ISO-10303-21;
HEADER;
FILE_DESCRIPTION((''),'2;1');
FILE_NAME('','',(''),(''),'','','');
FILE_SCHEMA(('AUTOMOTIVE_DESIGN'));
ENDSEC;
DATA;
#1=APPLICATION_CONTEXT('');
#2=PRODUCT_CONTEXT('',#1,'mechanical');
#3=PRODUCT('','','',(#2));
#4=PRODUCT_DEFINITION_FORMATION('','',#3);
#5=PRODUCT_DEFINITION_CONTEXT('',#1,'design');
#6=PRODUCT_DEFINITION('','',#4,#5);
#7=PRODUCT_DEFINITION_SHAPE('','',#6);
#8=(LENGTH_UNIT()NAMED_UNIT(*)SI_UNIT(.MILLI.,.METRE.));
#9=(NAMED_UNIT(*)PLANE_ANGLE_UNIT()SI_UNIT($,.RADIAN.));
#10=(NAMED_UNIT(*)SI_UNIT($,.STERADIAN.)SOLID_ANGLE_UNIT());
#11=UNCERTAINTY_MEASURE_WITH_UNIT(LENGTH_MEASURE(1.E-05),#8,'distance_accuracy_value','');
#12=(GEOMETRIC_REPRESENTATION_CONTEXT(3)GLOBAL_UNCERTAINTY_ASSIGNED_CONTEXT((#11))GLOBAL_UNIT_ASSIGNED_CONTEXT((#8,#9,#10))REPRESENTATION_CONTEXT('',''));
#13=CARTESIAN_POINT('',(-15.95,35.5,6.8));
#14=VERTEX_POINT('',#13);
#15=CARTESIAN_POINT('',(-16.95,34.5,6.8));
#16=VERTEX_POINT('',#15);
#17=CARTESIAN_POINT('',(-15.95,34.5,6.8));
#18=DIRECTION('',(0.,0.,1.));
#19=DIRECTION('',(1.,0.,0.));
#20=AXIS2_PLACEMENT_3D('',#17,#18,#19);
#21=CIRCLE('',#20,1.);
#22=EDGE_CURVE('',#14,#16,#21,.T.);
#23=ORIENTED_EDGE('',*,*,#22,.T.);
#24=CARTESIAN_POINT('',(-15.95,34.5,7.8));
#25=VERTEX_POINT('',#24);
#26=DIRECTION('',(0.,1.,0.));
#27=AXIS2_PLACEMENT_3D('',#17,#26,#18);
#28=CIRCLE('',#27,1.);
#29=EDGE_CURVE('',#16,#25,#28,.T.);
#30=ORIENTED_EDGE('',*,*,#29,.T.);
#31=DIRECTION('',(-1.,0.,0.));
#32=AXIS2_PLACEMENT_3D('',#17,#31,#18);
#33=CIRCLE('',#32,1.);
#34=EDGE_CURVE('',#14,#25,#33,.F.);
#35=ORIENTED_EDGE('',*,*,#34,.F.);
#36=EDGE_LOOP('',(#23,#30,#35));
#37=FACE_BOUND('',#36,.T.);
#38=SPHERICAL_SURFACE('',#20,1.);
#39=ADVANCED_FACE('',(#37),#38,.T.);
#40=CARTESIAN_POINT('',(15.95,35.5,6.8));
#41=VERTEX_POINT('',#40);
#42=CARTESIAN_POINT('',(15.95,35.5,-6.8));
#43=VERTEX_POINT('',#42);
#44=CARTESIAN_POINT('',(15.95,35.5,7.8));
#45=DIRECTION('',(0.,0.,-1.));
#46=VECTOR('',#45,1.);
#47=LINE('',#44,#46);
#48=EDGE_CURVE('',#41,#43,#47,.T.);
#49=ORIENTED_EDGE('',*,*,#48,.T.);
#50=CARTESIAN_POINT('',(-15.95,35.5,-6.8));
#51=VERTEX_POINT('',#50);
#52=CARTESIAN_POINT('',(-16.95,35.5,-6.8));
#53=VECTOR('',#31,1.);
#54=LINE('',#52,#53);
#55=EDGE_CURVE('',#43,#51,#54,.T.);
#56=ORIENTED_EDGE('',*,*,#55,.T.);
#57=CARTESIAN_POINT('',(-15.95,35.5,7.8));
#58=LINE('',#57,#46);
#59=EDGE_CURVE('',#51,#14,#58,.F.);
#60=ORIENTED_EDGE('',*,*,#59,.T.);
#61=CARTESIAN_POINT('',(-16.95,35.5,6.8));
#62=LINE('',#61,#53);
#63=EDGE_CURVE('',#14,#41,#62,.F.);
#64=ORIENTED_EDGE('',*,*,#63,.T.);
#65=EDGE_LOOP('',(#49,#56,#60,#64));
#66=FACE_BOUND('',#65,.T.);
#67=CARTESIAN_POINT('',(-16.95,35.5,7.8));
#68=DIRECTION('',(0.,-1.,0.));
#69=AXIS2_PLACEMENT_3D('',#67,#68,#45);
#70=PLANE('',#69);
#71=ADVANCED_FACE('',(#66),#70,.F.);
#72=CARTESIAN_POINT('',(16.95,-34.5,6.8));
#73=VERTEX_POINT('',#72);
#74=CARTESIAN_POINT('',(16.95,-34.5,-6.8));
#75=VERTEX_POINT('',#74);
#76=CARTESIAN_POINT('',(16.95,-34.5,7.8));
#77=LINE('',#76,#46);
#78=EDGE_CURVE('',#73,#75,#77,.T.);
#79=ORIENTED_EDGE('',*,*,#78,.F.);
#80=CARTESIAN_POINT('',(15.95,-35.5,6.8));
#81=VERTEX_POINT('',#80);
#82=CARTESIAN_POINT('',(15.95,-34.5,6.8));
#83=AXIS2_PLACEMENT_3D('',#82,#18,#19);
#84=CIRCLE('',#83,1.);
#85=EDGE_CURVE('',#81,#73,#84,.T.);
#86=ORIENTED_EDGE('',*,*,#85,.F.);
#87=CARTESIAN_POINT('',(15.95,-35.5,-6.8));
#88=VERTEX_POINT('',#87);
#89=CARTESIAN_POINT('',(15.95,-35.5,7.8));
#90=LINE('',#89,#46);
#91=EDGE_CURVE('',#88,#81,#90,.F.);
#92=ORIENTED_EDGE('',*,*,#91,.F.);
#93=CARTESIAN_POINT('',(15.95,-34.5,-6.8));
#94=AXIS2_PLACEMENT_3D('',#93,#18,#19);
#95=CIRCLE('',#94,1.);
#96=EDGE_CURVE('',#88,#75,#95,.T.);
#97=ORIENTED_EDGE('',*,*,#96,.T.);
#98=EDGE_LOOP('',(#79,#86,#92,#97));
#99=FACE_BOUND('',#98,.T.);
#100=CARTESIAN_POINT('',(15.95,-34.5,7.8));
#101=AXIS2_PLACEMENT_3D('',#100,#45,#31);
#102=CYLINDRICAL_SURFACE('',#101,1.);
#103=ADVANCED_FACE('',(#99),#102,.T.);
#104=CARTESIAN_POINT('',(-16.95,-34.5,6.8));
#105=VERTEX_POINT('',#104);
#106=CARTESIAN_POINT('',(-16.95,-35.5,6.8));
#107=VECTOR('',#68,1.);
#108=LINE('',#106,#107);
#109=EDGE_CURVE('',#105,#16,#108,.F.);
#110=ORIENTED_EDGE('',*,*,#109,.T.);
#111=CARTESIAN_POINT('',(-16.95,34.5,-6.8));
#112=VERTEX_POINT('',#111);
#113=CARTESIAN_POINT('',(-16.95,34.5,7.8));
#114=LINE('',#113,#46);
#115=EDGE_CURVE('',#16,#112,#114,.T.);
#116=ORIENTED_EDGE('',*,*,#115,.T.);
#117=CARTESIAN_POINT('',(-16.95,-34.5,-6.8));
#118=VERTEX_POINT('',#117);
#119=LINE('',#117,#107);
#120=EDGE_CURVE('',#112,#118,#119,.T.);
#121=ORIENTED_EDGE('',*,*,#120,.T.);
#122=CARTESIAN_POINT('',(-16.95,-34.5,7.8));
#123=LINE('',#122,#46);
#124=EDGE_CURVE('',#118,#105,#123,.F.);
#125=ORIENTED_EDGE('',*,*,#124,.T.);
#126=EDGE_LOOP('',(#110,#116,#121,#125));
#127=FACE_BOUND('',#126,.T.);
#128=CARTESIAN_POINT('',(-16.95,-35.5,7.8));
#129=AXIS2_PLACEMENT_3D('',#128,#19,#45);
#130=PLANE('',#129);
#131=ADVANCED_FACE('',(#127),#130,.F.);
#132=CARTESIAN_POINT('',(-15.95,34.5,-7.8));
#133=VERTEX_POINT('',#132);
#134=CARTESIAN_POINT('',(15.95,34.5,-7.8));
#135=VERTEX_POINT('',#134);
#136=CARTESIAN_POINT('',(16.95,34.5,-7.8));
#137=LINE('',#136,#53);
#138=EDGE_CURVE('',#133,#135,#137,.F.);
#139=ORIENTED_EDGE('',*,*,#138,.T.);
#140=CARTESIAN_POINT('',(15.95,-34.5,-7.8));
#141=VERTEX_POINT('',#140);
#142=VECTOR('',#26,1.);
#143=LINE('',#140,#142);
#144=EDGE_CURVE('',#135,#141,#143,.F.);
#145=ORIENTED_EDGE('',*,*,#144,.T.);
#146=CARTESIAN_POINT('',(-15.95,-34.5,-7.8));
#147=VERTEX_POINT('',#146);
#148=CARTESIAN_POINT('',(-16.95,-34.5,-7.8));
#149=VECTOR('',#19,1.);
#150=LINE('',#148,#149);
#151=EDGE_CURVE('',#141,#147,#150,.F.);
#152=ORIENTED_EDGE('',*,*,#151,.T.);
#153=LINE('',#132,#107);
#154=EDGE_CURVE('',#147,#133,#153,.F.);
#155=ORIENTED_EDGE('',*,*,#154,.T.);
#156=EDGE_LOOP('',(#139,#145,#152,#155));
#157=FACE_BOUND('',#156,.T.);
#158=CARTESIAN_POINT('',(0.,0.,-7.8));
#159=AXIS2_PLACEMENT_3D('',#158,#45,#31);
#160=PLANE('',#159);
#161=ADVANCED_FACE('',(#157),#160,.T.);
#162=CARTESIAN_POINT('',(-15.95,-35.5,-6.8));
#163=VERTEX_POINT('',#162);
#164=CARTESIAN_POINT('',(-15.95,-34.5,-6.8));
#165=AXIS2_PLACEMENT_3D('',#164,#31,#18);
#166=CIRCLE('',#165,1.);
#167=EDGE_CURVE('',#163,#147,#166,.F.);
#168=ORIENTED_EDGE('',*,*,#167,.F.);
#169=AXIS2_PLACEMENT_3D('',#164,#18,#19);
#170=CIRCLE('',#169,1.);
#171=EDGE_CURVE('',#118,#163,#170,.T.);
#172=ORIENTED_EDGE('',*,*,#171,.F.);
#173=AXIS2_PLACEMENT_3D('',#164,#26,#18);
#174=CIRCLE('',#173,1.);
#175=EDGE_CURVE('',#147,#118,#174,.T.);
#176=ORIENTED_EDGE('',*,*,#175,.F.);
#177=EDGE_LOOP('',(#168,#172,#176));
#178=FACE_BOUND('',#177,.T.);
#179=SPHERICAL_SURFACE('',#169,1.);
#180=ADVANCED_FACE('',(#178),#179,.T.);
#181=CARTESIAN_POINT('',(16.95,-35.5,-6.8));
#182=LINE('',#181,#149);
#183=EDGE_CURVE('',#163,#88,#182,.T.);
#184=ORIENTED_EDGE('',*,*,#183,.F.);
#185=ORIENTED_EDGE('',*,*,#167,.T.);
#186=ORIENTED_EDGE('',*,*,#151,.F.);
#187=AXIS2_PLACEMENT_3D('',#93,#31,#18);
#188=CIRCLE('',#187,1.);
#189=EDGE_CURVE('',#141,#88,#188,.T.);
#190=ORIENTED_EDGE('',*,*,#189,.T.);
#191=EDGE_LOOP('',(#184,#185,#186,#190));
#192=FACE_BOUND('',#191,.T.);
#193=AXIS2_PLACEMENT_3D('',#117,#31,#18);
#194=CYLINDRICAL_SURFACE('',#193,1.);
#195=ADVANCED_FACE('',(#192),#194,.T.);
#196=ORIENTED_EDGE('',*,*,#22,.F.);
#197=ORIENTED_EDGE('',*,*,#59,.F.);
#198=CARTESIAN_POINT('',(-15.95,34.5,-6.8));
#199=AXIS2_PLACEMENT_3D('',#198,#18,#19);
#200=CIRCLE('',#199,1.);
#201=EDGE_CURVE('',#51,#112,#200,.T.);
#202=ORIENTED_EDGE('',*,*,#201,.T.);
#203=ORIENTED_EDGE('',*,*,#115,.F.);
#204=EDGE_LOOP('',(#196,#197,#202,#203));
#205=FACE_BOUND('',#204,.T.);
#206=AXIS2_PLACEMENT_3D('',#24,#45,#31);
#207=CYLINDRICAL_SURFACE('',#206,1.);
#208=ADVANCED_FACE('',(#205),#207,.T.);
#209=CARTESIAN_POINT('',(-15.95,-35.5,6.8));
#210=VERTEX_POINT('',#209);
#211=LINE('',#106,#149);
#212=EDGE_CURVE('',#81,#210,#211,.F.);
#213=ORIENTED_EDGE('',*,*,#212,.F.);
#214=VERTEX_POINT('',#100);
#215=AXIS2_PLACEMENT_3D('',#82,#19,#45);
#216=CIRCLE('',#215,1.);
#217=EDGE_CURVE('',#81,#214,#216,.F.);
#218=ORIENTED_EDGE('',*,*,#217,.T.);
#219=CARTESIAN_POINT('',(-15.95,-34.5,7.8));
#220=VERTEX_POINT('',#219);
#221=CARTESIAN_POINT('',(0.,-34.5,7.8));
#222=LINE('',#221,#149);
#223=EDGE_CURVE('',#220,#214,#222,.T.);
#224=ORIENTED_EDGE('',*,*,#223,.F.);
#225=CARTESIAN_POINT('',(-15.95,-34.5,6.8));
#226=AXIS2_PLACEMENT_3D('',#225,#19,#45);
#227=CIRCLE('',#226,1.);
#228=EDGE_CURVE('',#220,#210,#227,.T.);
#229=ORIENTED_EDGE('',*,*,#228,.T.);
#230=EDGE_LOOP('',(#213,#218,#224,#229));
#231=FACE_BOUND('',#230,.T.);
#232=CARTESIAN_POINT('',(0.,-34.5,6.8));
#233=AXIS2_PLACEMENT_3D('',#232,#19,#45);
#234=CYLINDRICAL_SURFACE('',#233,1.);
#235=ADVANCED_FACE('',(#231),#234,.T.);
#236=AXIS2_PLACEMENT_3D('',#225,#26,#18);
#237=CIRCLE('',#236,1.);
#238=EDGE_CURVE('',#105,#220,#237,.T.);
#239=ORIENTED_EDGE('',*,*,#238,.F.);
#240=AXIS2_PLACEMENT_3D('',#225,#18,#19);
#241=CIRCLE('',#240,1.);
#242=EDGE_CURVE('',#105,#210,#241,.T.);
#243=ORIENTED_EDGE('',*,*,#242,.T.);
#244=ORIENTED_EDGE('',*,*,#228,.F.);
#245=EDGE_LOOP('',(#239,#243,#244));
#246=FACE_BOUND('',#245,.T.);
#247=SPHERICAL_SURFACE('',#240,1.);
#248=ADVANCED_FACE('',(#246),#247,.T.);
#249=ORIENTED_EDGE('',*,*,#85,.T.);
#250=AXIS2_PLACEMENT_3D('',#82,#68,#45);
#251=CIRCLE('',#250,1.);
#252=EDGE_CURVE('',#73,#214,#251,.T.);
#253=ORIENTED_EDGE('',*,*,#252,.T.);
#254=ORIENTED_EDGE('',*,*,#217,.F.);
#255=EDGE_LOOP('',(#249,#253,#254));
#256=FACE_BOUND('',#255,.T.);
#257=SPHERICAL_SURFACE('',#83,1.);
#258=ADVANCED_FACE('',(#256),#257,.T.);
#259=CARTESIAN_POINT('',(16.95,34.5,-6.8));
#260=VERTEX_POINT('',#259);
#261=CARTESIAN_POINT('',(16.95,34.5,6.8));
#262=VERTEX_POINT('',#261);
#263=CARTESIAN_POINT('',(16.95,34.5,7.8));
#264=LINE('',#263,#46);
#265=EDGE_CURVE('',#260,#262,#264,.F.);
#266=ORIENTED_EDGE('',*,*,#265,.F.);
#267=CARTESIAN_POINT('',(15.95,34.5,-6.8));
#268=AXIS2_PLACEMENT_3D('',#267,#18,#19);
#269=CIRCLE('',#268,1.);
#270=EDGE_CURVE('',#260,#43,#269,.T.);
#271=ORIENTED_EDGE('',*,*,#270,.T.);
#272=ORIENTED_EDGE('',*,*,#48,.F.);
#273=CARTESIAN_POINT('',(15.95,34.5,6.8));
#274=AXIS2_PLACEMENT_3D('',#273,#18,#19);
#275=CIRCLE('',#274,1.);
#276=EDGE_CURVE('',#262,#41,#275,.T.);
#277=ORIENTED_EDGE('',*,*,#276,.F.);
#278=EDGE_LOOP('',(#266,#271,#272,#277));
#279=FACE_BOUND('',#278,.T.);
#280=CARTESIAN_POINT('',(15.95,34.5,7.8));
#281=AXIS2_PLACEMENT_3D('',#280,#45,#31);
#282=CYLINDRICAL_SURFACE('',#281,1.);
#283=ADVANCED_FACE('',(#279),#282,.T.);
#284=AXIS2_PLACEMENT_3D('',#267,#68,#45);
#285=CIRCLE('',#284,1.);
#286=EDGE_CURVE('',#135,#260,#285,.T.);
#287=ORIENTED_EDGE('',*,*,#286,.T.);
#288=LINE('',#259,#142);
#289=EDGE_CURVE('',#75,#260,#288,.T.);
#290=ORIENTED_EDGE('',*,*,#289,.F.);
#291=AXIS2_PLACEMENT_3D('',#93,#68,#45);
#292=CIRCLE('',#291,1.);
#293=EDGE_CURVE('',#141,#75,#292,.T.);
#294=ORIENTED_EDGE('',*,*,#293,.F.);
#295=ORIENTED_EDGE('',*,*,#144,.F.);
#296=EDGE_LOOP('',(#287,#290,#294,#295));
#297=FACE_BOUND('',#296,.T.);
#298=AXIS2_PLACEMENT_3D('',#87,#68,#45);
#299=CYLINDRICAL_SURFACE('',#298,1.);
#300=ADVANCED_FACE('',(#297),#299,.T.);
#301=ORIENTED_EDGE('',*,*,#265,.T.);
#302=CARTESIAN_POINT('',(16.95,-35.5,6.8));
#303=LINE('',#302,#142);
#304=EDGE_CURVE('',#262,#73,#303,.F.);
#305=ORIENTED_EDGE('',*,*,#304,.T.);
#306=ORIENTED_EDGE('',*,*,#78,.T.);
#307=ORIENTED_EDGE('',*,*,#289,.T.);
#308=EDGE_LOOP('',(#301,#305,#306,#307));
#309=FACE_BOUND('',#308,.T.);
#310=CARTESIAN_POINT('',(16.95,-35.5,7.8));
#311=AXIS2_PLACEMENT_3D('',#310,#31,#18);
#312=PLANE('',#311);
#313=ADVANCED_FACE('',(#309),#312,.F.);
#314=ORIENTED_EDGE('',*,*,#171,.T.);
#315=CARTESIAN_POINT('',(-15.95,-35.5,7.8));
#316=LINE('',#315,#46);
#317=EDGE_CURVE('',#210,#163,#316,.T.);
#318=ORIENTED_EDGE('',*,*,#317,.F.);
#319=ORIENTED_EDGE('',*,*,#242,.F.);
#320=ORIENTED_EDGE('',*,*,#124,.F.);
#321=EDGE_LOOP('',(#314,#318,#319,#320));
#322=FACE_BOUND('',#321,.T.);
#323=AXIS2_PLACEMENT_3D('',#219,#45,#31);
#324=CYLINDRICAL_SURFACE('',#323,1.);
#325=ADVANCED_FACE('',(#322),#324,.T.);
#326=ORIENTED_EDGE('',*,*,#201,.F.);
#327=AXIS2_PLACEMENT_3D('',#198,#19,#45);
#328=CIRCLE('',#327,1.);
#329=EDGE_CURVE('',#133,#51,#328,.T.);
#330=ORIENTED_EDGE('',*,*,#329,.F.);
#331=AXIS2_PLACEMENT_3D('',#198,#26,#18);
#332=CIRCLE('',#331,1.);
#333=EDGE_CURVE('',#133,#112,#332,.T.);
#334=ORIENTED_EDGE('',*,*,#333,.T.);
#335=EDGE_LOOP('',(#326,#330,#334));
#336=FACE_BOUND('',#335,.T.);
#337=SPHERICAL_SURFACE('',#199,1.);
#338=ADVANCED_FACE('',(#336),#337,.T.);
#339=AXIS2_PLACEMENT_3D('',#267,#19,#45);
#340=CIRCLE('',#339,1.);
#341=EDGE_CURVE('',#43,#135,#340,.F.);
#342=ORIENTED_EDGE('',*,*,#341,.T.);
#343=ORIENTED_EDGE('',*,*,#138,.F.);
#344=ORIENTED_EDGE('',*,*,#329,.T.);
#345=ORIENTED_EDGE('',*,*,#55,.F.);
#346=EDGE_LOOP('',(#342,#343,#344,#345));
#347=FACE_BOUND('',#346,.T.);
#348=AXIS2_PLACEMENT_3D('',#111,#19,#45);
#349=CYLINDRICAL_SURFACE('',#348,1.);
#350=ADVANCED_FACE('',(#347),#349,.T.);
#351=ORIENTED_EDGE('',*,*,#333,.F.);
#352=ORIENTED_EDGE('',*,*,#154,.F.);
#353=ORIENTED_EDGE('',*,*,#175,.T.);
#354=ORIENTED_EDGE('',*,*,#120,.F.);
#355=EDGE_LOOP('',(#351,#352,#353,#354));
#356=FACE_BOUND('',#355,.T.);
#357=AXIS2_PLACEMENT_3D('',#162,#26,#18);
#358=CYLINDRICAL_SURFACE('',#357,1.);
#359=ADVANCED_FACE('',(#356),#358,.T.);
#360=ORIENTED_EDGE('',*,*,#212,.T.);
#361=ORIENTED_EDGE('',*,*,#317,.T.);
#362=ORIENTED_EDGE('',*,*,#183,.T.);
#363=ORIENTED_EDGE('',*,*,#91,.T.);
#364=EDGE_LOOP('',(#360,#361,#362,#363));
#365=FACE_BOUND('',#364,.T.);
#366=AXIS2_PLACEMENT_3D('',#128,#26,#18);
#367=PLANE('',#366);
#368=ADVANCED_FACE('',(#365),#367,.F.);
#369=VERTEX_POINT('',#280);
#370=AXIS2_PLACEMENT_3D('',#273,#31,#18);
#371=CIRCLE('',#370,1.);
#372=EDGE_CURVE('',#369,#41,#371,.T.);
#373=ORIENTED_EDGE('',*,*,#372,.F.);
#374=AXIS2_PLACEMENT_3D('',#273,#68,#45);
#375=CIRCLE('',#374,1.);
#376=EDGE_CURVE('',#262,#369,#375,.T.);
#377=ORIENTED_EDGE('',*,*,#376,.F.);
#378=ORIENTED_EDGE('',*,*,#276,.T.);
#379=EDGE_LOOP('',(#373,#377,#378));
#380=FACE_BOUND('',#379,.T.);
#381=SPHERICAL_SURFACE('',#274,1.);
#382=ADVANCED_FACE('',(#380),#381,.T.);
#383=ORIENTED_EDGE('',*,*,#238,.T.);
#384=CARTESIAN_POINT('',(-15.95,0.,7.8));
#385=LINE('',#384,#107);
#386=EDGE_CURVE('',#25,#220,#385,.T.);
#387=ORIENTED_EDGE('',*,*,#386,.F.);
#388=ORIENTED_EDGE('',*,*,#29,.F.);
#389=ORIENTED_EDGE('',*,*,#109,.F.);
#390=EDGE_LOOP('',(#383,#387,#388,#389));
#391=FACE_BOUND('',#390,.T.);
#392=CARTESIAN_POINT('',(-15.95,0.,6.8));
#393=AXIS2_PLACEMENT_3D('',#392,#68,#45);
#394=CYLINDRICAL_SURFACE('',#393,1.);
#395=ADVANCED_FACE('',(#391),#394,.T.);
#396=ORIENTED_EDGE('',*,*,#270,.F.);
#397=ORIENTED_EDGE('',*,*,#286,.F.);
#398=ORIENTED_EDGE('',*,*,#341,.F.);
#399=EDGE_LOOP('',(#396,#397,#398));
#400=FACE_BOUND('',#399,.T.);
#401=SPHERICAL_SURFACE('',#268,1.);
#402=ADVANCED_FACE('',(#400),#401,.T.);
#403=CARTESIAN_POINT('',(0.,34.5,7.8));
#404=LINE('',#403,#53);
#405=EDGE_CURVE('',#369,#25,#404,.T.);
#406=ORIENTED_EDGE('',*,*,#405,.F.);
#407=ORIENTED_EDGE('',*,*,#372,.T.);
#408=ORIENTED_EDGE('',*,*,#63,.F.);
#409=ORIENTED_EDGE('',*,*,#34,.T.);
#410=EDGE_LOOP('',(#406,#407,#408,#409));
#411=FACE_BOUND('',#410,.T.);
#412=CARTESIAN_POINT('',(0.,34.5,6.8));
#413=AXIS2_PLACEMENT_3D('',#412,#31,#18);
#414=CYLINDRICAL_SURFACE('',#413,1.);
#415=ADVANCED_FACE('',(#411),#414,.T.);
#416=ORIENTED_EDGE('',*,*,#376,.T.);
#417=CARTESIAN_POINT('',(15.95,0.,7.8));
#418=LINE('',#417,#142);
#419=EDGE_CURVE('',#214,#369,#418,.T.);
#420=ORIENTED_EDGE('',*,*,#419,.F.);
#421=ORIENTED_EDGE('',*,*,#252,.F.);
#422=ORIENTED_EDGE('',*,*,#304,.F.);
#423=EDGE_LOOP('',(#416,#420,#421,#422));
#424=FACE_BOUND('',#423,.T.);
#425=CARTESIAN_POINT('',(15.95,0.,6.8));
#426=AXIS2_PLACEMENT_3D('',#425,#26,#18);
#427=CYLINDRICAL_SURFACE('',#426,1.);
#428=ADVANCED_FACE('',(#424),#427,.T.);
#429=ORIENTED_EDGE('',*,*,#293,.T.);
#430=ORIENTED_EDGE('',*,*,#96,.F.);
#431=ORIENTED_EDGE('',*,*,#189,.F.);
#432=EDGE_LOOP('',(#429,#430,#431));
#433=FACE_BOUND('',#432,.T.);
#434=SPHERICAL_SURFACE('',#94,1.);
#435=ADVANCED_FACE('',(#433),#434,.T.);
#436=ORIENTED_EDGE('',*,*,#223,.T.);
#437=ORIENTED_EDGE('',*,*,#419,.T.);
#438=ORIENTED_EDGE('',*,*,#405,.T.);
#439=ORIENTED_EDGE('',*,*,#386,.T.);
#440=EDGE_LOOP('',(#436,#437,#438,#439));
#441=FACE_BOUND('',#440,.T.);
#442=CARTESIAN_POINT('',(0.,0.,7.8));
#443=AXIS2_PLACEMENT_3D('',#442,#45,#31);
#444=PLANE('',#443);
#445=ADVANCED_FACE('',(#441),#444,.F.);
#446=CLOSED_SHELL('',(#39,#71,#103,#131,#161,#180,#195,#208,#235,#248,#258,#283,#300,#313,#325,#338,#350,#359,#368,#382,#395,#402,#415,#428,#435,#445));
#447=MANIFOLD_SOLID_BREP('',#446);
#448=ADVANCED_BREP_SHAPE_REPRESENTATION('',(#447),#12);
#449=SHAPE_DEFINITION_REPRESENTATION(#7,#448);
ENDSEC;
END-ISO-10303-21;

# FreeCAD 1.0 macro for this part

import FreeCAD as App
import Part
import Sketcher
Q = App.Units.Quantity


def edges_at(feature, points):
    """Names of the edges that pass closest to the given points."""
    edges = feature.Shape.Edges
    near = lambda p: min(range(len(edges)), key=lambda i: edges[i].distToShape(Part.Vertex(*p))[0])
    return sorted({f"Edge{near(p) + 1}" for p in points})


def add_polygon(sketch, points):
    """Adds a closed chain of lines whose ends are joined by coincident constraints."""
    first, n = sketch.GeometryCount, len(points)
    for a, b in zip(points, points[1:] + points[:1]):
        sketch.addGeometry(Part.LineSegment(App.Vector(*a, 0), App.Vector(*b, 0)), False)
    for i in range(n):
        sketch.addConstraint(Sketcher.Constraint("Coincident", first + i, 2, first + (i + 1) % n, 1))

doc = App.newDocument("Part")
body = doc.addObject("PartDesign::Body", "Body")

# Sketch on XY plane
sketch1 = body.newObject("Sketcher::SketchObject", "Sketch")
sketch1.AttachmentSupport = (doc.getObject("XY_Plane"), [""])
sketch1.MapMode = "FlatFace"
add_polygon(sketch1, [(-16.95, 35.5), (-16.95, -35.5), (16.95, -35.5), (16.95, 35.5)])  # lines 0-3
sketch1.addConstraint(Sketcher.Constraint("Vertical", 0))
sketch1.addConstraint(Sketcher.Constraint("Horizontal", 1))
sketch1.addConstraint(Sketcher.Constraint("Vertical", 2))
sketch1.addConstraint(Sketcher.Constraint("Horizontal", 3))
sketch1.addConstraint(Sketcher.Constraint("Symmetric", 0, 2, 2, 2, -1, 1))
sketch1.addConstraint(Sketcher.Constraint("DistanceY", 0, 2, 0, 1, Q("71 mm")))
sketch1.addConstraint(Sketcher.Constraint("DistanceX", 1, 1, 1, 2, Q("33.9 mm")))
pad1 = body.newObject("PartDesign::Pad", "Pad")
pad1.Profile = sketch1
pad1.Length = 15.6
pad1.Midplane = True
doc.recompute()

fillet = body.newObject("PartDesign::Fillet", "Fillet")
fillet.Base = (pad1, edges_at(pad1, [
    (0, -35.5, 7.8),
    (0, -35.5, -7.8),
    (0, 35.5, -7.8),
    (0, 35.5, 7.8),
]))
fillet.Radius = 1
doc.recompute()

fillet2 = body.newObject("PartDesign::Fillet", "Fillet001")
fillet2.Base = (fillet, edges_at(fillet, [
    (16.95, -35.5, 0),
    (-16.95, -35.5, 0),
    (16.95, 0, -7.8),
    (16.95, 35.5, 0),
    (16.95, 0, 7.8),
    (16.95, 35.207, 7.507),
    (16.95, 35.207, -7.507),
    (16.95, -35.207, 7.507),
    (16.95, -35.207, -7.507),
    (-16.95, 0, -7.8),
    (-16.95, 0, 7.8),
    (-16.95, 35.5, 0),
    (-16.95, 35.207, 7.507),
    (-16.95, 35.207, -7.507),
    (-16.95, -35.207, 7.507),
    (-16.95, -35.207, -7.507),
]))
fillet2.Radius = 1

doc.recompute()
